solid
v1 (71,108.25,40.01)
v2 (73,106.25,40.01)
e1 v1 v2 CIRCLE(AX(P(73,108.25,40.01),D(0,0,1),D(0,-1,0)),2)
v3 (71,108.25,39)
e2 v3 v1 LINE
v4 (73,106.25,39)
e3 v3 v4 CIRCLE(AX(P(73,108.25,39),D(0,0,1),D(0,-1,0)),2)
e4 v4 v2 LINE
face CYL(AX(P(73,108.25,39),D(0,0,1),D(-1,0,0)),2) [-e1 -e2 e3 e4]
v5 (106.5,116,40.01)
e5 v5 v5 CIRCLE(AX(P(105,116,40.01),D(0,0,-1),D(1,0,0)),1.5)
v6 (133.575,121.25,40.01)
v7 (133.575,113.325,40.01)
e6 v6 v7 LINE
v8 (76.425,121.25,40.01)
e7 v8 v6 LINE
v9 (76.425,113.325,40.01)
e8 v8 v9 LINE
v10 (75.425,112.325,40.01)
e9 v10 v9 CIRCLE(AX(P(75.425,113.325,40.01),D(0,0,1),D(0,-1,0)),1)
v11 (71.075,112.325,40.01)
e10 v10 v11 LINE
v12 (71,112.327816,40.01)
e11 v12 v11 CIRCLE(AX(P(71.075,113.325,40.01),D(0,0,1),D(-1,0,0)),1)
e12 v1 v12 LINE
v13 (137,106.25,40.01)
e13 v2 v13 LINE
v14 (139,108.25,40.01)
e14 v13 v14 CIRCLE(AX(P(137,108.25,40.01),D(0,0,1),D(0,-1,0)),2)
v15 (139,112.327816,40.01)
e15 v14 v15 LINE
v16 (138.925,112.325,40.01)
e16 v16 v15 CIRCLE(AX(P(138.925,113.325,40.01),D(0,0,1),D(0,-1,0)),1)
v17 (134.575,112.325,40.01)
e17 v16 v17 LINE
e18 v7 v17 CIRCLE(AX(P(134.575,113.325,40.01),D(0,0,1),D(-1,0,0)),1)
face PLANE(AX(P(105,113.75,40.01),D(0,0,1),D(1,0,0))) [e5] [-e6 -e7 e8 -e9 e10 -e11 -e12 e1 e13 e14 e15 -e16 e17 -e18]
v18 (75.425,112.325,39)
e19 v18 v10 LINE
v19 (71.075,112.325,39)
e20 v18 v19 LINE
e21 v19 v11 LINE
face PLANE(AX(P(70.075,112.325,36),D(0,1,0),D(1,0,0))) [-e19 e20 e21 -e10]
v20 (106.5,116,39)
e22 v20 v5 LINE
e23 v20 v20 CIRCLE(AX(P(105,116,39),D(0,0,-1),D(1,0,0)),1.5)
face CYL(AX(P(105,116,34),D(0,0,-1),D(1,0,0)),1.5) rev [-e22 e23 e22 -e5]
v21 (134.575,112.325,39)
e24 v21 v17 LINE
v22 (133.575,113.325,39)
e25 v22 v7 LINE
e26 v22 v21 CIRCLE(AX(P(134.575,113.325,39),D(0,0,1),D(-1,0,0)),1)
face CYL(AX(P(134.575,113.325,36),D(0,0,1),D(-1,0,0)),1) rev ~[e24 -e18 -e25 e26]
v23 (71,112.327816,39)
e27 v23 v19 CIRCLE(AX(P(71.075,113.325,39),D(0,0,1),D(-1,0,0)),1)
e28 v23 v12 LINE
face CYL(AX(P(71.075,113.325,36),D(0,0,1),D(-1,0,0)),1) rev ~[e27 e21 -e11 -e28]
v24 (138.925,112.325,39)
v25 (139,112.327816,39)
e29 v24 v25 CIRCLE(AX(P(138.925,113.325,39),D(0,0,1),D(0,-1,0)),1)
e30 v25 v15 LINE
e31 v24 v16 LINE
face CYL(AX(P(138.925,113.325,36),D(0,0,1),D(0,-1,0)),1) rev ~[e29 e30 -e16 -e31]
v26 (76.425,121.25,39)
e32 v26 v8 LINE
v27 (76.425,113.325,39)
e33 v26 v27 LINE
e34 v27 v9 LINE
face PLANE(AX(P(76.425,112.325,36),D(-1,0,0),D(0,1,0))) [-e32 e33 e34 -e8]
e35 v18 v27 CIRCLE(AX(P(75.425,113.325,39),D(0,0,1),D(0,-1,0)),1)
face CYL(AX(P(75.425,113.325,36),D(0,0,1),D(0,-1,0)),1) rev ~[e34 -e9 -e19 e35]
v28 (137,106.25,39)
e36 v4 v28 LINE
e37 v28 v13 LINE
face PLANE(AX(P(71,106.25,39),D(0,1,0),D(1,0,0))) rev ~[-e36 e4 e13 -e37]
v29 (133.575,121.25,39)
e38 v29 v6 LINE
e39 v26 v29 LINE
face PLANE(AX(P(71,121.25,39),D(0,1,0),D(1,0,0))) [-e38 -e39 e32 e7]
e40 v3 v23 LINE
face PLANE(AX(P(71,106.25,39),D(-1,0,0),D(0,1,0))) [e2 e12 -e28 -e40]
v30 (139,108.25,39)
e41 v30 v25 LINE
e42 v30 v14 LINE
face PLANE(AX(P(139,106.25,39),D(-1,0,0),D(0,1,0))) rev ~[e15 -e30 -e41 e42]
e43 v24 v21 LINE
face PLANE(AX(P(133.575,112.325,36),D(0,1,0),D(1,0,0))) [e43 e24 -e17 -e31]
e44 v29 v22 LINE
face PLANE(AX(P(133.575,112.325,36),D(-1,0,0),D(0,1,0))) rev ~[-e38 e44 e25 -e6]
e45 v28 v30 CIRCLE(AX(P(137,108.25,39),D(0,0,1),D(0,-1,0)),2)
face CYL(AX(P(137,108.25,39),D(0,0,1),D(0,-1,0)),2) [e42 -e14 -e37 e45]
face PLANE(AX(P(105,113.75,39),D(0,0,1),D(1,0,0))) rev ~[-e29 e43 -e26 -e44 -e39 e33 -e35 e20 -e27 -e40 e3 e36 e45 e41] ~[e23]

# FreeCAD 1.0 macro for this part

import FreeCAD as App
import Part
import Sketcher
from FreeCAD import Vector
Q = App.Units.Quantity


def edges_at(feature, points):
    """Names of the edges that pass closest to the given points."""
    edges = feature.Shape.Edges
    near = lambda p: min(range(len(edges)), key=lambda i: edges[i].distToShape(Part.Vertex(*p))[0])
    return sorted({f"Edge{near(p) + 1}" for p in points})


def add_polygon(sketch, points):
    """Adds a closed chain of lines whose ends are joined by coincident constraints."""
    first, n = sketch.GeometryCount, len(points)
    for a, b in zip(points, points[1:] + points[:1]):
        sketch.addGeometry(Part.LineSegment(App.Vector(*a, 0), App.Vector(*b, 0)), False)
    for i in range(n):
        sketch.addConstraint(Sketcher.Constraint("Coincident", first + i, 2, first + (i + 1) % n, 1))

doc = App.newDocument("Part")
body = doc.addObject("PartDesign::Body", "Body")

# Sketch on XY plane
sketch1 = body.newObject("Sketcher::SketchObject", "Sketch")
sketch1.AttachmentSupport = (doc.getObject("XY_Plane"), [""])
sketch1.MapMode = "FlatFace"
sketch1.AttachmentOffset = App.Placement(Vector(0, 0, 34), App.Rotation())
sketch1.addGeometry(Part.Circle(Vector(105, 116, 0), Vector(0, 0, 1), 1.5), False)
sketch1.addConstraint(Sketcher.Constraint("Diameter", 0, Q("3 mm")))
sketch1.addConstraint(Sketcher.Constraint("DistanceX", -1, 1, 0, 3, Q("105 mm")))
sketch1.addConstraint(Sketcher.Constraint("DistanceY", -1, 1, 0, 3, Q("116 mm")))
pad1 = body.newObject("PartDesign::Pad", "Pad")
pad1.Profile = sketch1
pad1.Length = 10
body2 = doc.addObject("PartDesign::Body", "Body001")

# Sketch on XY plane
sketch2 = body2.newObject("Sketcher::SketchObject", "Sketch001")
sketch2.AttachmentSupport = (doc.getObject("XY_Plane001"), [""])
sketch2.MapMode = "FlatFace"
sketch2.AttachmentOffset = App.Placement(Vector(0, 0, 4), App.Rotation())
sketch2.addGeometry(Part.Circle(Vector(73.2, 179.8, 0), Vector(0, 0, 1), 2.6), False)
sketch2.addConstraint(Sketcher.Constraint("DistanceX", -1, 1, 0, 3, Q("73.25 mm")))
sketch2.addConstraint(Sketcher.Constraint("DistanceY", -1, 1, 0, 3, Q("179.75 mm")))
sketch2.addConstraint(Sketcher.Constraint("Diameter", 0, Q("5.159374 mm")))
pad2 = body2.newObject("PartDesign::Pad", "Pad001")
pad2.Profile = sketch2
pad2.Length = 56.5
body3 = doc.addObject("PartDesign::Body", "Body002")

# Sketch on XY plane
sketch3 = body3.newObject("Sketcher::SketchObject", "Sketch002")
sketch3.AttachmentSupport = (doc.getObject("XY_Plane002"), [""])
sketch3.MapMode = "FlatFace"
sketch3.AttachmentOffset = App.Placement(Vector(0, 0, 4), App.Rotation())
sketch3.addGeometry(Part.Circle(Vector(136.8, 179.8, 0), Vector(0, 0, 1), 2.6), False)
sketch3.addConstraint(Sketcher.Constraint("DistanceX", -1, 1, 0, 3, Q("136.75 mm")))
sketch3.addConstraint(Sketcher.Constraint("DistanceY", -1, 1, 0, 3, Q("179.75 mm")))
sketch3.addConstraint(Sketcher.Constraint("Diameter", 0, Q("5.159374 mm")))
pad3 = body3.newObject("PartDesign::Pad", "Pad002")
pad3.Profile = sketch3
pad3.Length = 55.5
body4 = doc.addObject("PartDesign::Body", "Body003")

# Sketch on XY plane
sketch4 = body4.newObject("Sketcher::SketchObject", "Sketch003")
sketch4.AttachmentSupport = (doc.getObject("XY_Plane003"), [""])
sketch4.MapMode = "FlatFace"
sketch4.AttachmentOffset = App.Placement(Vector(0, 0, 36), App.Rotation())
add_polygon(sketch4, [(70, 191), (70, 176), (76, 176), (76, 191)])  # lines 0-3
sketch4.addConstraint(Sketcher.Constraint("Vertical", 0))
sketch4.addConstraint(Sketcher.Constraint("Horizontal", 1))
sketch4.addConstraint(Sketcher.Constraint("Vertical", 2))
sketch4.addConstraint(Sketcher.Constraint("Horizontal", 3))
sketch4.addConstraint(Sketcher.Constraint("DistanceY", 0, 2, 0, 1, Q("15 mm")))
sketch4.addConstraint(Sketcher.Constraint("DistanceX", 1, 1, 1, 2, Q("6.35 mm")))
sketch4.addConstraint(Sketcher.Constraint("DistanceX", -1, 1, 0, 2, Q("70.075 mm")))
sketch4.addConstraint(Sketcher.Constraint("DistanceY", -1, 1, 0, 2, Q("175.825 mm")))
pad4 = body4.newObject("PartDesign::Pad", "Pad003")
pad4.Profile = sketch4
pad4.Length = 10
doc.recompute()

fillet = body4.newObject("PartDesign::Fillet", "Fillet")
fillet.Base = (pad4, edges_at(pad4, [(70.075, 175.825, 41), (76.425, 175.825, 41)]))
fillet.Radius = 1
body5 = doc.addObject("PartDesign::Body", "Body004")
doc.recompute()

body4.Placement = App.Placement(Vector(63.5, 0, 0), App.Rotation(Vector(0, 0, 1), 0))
boolean = body5.newObject("PartDesign::Boolean", "Boolean")
boolean.Type = "Fuse"
boolean.addObjects([body4])
body6 = doc.addObject("PartDesign::Body", "Body005")
body6.AllowCompound = True

# Sketch on XY plane
sketch5 = body6.newObject("Sketcher::SketchObject", "Sketch004")
sketch5.AttachmentSupport = (doc.getObject("XY_Plane005"), [""])
sketch5.MapMode = "FlatFace"
sketch5.AttachmentOffset = App.Placement(Vector(0, 0, 36), App.Rotation())
add_polygon(sketch5, [(70, 191), (70, 176), (76, 176), (76, 191)])  # lines 0-3
sketch5.addConstraint(Sketcher.Constraint("Vertical", 0))
sketch5.addConstraint(Sketcher.Constraint("Horizontal", 1))
sketch5.addConstraint(Sketcher.Constraint("Vertical", 2))
sketch5.addConstraint(Sketcher.Constraint("Horizontal", 3))
sketch5.addConstraint(Sketcher.Constraint("DistanceY", 0, 2, 0, 1, Q("15 mm")))
sketch5.addConstraint(Sketcher.Constraint("DistanceX", 1, 1, 1, 2, Q("6.35 mm")))
sketch5.addConstraint(Sketcher.Constraint("DistanceX", -1, 1, 0, 2, Q("70.075 mm")))
sketch5.addConstraint(Sketcher.Constraint("DistanceY", -1, 1, 0, 2, Q("175.825 mm")))
pad5 = body6.newObject("PartDesign::Pad", "Pad004")
pad5.Profile = sketch5
pad5.Length = 10
doc.recompute()

fillet2 = body6.newObject("PartDesign::Fillet", "Fillet001")
fillet2.Base = (pad5, edges_at(pad5, [(70.075, 175.825, 41), (76.425, 175.825, 41)]))
fillet2.Radius = 1
doc.recompute()

boolean2 = body6.newObject("PartDesign::Boolean", "Boolean001")
boolean2.Type = "Fuse"
boolean2.addObjects([body2])
doc.recompute()

boolean3 = body6.newObject("PartDesign::Boolean", "Boolean002")
boolean3.Type = "Fuse"
boolean3.addObjects([body3])
doc.recompute()

boolean4 = body6.newObject("PartDesign::Boolean", "Boolean003")
boolean4.Type = "Fuse"
boolean4.addObjects([body5])
body7 = doc.addObject("PartDesign::Body", "Body006")

# Sketch on XY plane
sketch6 = body7.newObject("Sketcher::SketchObject", "Sketch005")
sketch6.AttachmentSupport = (doc.getObject("XY_Plane006"), [""])
sketch6.MapMode = "FlatFace"
sketch6.AttachmentOffset = App.Placement(Vector(0, 0, 39), App.Rotation())
add_polygon(sketch6, [(71, 185), (71, 170), (139, 170), (139, 185)])  # lines 0-3
sketch6.addConstraint(Sketcher.Constraint("Vertical", 0))
sketch6.addConstraint(Sketcher.Constraint("Horizontal", 1))
sketch6.addConstraint(Sketcher.Constraint("Vertical", 2))
sketch6.addConstraint(Sketcher.Constraint("Horizontal", 3))
sketch6.addConstraint(Sketcher.Constraint("DistanceX", 1, 1, 1, 2, Q("68 mm")))
sketch6.addConstraint(Sketcher.Constraint("DistanceY", 0, 2, 0, 1, Q("15 mm")))
sketch6.addConstraint(Sketcher.Constraint("DistanceX", -1, 1, 0, 2, Q("71 mm")))
sketch6.addConstraint(Sketcher.Constraint("DistanceY", -1, 1, 0, 2, Q("169.75 mm")))
pad6 = body7.newObject("PartDesign::Pad", "Pad005")
pad6.Profile = sketch6
pad6.Length = 1.01
doc.recompute()

fillet3 = body7.newObject("PartDesign::Fillet", "Fillet002")
fillet3.Base = (pad6, edges_at(pad6, [
    (71, 169.75, 39.505),
    (71, 184.75, 39.505),
    (139, 169.75, 39.505),
    (139, 184.75, 39.505),
]))
fillet3.Radius = 2
doc.recompute()

boolean5 = body7.newObject("PartDesign::Boolean", "Boolean004")
boolean5.Type = "Cut"
boolean5.addObjects([body6])
body8 = doc.addObject("PartDesign::Body", "Body007")
doc.recompute()

body7.Placement = App.Placement(Vector(0, -63.5, 0), App.Rotation(Vector(0, 0, 1), 0))
boolean6 = body8.newObject("PartDesign::Boolean", "Boolean005")
boolean6.Type = "Fuse"
boolean6.addObjects([body7])
doc.recompute()

boolean7 = body8.newObject("PartDesign::Boolean", "Boolean006")
boolean7.Type = "Cut"
boolean7.addObjects([body])

doc.recompute()
